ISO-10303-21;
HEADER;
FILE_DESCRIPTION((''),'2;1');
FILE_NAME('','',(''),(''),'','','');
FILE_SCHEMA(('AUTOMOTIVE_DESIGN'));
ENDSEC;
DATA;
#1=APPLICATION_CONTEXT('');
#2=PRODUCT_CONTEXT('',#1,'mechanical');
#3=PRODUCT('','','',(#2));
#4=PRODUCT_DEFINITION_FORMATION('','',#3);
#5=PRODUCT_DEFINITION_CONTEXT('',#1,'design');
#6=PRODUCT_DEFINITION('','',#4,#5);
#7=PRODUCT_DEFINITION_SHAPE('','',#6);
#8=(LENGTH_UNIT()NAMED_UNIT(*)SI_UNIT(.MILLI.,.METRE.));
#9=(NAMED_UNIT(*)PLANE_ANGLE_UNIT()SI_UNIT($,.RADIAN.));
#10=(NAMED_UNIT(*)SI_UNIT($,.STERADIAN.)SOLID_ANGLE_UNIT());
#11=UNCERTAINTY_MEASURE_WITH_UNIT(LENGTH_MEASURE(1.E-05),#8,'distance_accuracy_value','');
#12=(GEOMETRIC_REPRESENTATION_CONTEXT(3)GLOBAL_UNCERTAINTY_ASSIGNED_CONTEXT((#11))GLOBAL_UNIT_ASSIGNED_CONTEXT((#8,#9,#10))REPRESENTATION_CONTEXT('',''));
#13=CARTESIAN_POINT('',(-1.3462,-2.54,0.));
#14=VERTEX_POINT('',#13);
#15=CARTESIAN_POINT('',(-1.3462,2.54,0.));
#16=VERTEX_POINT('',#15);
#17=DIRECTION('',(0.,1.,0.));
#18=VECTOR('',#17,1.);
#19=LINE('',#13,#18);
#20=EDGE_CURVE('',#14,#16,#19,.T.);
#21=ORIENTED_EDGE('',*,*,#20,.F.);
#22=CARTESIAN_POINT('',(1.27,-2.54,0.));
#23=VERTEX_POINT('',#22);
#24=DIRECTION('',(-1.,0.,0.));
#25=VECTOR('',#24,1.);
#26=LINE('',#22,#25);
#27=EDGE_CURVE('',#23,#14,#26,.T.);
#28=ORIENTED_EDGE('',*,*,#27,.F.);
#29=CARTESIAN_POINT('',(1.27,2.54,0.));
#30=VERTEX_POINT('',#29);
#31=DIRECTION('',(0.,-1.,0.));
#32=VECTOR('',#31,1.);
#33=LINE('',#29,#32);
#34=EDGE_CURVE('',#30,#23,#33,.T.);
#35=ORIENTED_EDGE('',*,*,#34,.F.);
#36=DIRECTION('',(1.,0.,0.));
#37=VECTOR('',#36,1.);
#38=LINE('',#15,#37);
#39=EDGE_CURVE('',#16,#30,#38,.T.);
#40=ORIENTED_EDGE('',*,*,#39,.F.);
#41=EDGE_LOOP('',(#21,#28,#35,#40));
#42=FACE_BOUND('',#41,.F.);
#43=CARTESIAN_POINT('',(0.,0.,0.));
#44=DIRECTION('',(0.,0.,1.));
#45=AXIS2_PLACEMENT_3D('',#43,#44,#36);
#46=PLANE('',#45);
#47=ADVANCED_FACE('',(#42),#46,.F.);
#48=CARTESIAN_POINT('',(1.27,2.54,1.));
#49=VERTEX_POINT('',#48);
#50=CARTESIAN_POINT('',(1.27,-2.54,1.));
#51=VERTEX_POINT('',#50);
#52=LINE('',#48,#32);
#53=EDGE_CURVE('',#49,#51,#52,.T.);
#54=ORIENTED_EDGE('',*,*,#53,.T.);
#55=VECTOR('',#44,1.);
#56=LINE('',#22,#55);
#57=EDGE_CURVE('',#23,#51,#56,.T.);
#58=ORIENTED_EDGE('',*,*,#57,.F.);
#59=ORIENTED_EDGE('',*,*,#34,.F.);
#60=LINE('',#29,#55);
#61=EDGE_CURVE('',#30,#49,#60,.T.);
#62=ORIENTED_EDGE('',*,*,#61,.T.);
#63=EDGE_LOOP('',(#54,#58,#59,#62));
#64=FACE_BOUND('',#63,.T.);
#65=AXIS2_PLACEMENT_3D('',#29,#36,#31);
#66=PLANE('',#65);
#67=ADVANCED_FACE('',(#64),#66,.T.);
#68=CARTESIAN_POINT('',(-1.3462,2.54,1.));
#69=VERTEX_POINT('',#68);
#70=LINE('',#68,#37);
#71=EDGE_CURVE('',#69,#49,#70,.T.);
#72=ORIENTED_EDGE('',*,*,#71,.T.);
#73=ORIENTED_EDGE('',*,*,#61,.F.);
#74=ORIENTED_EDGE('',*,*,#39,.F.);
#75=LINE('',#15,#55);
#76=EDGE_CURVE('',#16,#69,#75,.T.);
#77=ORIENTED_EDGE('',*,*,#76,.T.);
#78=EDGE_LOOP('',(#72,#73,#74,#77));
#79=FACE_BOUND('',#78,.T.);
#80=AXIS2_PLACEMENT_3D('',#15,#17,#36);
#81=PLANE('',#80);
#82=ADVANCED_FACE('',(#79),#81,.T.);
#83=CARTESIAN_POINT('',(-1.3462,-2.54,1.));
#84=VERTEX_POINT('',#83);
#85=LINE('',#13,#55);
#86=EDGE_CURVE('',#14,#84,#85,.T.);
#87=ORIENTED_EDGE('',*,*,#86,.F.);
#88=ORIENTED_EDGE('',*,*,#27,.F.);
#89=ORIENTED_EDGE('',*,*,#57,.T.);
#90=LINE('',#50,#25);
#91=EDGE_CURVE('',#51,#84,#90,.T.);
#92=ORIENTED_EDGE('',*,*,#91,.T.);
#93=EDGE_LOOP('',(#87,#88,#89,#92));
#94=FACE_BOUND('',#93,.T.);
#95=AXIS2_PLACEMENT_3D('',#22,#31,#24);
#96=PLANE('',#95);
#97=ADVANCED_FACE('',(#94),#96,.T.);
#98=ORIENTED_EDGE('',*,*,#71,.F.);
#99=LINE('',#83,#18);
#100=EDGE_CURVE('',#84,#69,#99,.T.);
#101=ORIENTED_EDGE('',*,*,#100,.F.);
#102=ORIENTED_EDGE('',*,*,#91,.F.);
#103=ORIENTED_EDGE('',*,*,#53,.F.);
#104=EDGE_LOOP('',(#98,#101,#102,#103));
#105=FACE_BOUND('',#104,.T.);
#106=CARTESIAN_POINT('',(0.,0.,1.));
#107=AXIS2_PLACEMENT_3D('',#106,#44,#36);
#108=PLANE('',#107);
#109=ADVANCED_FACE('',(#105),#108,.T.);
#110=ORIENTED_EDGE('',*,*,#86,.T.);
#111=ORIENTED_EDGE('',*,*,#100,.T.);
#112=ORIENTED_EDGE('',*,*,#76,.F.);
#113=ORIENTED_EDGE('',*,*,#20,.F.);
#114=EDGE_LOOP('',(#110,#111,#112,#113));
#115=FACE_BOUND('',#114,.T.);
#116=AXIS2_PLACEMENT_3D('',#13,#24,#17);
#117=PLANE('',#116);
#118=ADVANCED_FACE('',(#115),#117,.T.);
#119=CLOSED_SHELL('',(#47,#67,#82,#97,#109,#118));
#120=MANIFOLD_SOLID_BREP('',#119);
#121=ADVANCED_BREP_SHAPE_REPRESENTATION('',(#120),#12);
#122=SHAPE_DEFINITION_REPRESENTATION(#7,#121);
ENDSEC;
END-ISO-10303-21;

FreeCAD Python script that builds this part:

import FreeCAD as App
import Part
import Sketcher

V = App.Vector
Q = App.Units.Quantity


def add_polygon(sketch, points):
    """Adds a closed chain of lines whose ends are joined by coincident constraints."""
    first, n = sketch.GeometryCount, len(points)
    for a, b in zip(points, points[1:] + points[:1]):
        sketch.addGeometry(Part.LineSegment(App.Vector(*a, 0), App.Vector(*b, 0)), False)
    for i in range(n):
        sketch.addConstraint(Sketcher.Constraint("Coincident", first + i, 2, first + (i + 1) % n, 1))

doc = App.newDocument("Part")
body = doc.addObject("PartDesign::Body", "Body")

sketch1 = body.newObject("Sketcher::SketchObject", "Sketch")
sketch1.AttachmentSupport = (doc.getObject("XY_Plane"), [""])
sketch1.MapMode = "FlatFace"
add_polygon(sketch1, [(1.3, 2.5), (-1.3, 2.5), (-1.3, -2.5), (1.3, -2.5)])
sketch1.addConstraint(Sketcher.Constraint("Horizontal", 0))
sketch1.addConstraint(Sketcher.Constraint("Vertical", 1))
sketch1.addConstraint(Sketcher.Constraint("Horizontal", 2))
sketch1.addConstraint(Sketcher.Constraint("Vertical", 3))
sketch1.addConstraint(Sketcher.Constraint("DistanceY", 1, 2, 1, 1, Q("0.2 in")))
sketch1.addConstraint(Sketcher.Constraint("DistanceY", -1, 1, 0, 2, Q("0.1 in")))
sketch1.addConstraint(Sketcher.Constraint("DistanceX", 0, 2, 0, 1, Q("0.103 in")))
sketch1.addConstraint(Sketcher.Constraint("DistanceX", -1, 1, 2, 2, Q("0.05 in")))
pad1 = body.newObject("PartDesign::Pad", "Pad")
pad1.Profile = sketch1
pad1.Length = 1

doc.recompute()
